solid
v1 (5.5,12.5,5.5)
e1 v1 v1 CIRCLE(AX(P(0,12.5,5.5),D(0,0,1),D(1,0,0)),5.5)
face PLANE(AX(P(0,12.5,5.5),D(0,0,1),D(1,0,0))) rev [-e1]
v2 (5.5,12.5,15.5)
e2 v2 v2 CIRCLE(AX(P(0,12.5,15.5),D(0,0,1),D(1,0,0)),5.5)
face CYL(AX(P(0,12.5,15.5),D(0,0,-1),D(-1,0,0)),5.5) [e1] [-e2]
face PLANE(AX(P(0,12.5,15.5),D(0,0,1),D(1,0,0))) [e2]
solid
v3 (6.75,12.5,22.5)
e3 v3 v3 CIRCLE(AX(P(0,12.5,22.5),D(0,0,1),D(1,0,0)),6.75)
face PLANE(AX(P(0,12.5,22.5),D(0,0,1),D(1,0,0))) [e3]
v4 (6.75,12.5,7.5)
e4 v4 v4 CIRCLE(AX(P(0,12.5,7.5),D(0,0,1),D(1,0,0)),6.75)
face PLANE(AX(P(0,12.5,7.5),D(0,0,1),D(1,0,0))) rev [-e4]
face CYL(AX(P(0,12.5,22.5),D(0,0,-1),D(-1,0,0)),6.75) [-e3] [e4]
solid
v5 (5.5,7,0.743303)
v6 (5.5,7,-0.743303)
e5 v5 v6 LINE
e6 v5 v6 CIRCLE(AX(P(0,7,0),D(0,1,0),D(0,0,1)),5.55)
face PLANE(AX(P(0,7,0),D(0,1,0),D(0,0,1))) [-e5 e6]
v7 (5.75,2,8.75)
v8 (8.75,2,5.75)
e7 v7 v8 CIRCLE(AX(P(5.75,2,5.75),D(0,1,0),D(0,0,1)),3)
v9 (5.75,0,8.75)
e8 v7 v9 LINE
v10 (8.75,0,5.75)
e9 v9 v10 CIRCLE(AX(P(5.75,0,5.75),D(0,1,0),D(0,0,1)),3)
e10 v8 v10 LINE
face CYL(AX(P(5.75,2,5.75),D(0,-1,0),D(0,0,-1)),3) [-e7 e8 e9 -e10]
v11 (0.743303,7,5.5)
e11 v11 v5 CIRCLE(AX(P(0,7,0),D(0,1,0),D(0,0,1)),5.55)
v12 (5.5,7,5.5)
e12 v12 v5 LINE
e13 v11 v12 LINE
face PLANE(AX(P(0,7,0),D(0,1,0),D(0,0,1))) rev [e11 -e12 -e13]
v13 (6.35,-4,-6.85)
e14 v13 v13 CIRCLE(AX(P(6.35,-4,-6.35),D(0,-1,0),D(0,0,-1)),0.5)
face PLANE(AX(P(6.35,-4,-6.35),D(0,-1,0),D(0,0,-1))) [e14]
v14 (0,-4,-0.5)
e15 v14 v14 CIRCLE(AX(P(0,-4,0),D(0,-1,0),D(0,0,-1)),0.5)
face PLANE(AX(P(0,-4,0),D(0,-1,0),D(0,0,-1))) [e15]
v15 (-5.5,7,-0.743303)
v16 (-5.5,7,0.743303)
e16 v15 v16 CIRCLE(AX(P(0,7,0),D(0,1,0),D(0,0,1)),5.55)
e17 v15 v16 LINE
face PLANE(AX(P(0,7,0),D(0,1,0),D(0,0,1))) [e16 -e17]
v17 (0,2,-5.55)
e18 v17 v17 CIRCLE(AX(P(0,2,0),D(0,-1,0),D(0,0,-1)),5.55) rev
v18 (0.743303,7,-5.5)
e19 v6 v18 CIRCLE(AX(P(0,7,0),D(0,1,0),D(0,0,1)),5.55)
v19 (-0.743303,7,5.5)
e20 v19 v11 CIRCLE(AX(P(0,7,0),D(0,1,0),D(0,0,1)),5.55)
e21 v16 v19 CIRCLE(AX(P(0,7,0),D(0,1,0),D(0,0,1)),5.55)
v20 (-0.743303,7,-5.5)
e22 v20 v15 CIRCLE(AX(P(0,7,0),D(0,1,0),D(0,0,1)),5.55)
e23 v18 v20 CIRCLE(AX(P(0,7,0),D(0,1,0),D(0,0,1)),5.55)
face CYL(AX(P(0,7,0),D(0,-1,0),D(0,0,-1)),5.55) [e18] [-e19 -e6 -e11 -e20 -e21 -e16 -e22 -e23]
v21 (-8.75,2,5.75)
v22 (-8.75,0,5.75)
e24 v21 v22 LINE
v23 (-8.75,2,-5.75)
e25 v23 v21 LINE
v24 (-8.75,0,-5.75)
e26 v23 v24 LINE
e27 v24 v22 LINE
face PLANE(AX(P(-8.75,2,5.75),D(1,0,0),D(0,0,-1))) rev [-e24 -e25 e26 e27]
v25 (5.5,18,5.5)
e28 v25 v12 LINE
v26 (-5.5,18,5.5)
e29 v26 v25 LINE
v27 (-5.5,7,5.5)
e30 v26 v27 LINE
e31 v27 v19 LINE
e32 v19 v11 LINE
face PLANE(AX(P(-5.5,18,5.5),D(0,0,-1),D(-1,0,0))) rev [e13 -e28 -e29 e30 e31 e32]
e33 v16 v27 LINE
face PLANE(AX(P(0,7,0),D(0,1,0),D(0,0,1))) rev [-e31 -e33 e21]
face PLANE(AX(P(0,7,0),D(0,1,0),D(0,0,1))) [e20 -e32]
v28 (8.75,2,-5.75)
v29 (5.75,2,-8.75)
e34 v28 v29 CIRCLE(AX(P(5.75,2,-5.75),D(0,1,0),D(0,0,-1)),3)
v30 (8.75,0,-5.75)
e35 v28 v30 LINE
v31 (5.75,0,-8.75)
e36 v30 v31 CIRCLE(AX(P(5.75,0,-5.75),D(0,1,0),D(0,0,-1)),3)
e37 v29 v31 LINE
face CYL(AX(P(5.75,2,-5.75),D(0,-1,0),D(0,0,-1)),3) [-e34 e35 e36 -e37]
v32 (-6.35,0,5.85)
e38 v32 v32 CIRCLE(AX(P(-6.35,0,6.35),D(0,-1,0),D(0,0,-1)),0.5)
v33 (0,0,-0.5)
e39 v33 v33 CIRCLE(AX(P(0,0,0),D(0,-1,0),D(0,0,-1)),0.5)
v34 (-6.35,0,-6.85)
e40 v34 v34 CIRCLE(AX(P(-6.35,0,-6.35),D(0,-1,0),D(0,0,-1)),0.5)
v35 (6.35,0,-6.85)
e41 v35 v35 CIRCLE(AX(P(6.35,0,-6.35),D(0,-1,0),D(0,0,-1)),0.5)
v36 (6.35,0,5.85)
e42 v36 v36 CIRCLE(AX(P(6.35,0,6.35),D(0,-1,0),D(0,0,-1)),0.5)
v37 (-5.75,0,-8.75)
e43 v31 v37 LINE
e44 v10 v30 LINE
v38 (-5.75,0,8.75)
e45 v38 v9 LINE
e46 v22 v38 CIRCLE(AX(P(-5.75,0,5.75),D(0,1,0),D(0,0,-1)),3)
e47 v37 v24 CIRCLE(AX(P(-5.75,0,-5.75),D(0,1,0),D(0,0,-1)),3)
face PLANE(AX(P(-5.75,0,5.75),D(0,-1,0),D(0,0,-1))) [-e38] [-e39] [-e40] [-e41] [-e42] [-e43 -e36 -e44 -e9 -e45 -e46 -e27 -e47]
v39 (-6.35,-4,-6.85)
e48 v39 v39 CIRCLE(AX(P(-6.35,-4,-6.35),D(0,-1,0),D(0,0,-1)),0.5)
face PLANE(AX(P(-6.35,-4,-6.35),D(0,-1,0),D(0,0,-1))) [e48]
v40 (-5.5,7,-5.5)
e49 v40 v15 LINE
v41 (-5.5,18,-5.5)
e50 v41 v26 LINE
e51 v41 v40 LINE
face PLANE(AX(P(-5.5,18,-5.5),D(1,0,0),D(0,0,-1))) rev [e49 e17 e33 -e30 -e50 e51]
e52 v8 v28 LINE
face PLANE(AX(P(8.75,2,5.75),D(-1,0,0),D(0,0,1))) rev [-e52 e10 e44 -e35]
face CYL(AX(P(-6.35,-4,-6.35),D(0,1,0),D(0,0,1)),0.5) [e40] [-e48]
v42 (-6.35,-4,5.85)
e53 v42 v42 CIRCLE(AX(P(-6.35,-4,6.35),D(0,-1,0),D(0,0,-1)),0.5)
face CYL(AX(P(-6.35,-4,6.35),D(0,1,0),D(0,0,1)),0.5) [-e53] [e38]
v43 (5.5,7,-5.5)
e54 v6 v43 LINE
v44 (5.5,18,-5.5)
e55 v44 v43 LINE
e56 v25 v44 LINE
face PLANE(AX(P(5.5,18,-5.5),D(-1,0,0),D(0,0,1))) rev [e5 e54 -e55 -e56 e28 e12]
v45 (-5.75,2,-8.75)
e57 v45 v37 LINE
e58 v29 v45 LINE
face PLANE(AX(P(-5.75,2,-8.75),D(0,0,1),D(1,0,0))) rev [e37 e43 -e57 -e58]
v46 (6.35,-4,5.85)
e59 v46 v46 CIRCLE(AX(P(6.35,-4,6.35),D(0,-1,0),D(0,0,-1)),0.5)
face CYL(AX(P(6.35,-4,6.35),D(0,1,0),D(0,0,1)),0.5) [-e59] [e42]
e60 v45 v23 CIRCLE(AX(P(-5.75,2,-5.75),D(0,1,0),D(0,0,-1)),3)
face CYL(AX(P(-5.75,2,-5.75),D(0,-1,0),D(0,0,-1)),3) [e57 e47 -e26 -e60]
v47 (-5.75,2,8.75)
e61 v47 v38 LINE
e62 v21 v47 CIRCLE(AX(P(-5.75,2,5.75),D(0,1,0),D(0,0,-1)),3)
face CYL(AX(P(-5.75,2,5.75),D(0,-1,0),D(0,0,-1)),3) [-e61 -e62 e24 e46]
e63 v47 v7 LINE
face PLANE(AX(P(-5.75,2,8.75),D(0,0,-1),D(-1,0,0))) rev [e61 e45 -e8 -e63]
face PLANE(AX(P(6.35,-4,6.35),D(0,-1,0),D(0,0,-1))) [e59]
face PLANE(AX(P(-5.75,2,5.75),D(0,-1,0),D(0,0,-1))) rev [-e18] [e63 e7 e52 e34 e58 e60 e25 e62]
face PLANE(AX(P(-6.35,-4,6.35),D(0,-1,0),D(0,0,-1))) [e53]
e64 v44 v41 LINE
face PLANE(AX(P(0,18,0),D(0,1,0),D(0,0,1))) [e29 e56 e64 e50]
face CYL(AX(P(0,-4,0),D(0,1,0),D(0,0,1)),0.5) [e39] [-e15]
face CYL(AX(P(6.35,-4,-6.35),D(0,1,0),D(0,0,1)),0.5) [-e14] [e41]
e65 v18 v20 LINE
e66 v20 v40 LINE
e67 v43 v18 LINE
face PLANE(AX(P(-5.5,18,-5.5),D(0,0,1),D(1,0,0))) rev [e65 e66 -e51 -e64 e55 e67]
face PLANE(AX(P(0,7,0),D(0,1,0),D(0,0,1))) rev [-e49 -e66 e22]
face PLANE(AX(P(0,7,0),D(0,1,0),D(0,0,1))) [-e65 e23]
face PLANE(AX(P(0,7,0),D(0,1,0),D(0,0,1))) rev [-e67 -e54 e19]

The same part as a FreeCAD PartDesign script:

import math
import FreeCAD as App
import Part
import Sketcher
Q = App.Units.Quantity

doc = App.newDocument("Part")
params = doc.addObject("Spreadsheet::Sheet", "Params")
for row, (alias, value) in enumerate([
    ("sketch1_radius", "3 mm"),
    ("sketch1_width", "11.5 mm"),
    ("pad1_length", "2 mm"),
    ("sketch2_diameter", "1 mm"),
    ("pad2_length", "4 mm"),
    ("sketch3_diameter", "11.1 mm"),
    ("pad3_length", "5 mm"),
    ("sketch4_width", "11 mm"),
    ("pad4_length", "11 mm"),
    ("sketch5_diameter", "11 mm"),
    ("pad5_length", "10 mm"),
    ("sketch6_diameter", "13.5 mm"),
    ("pad6_length", "15 mm"),
], start=1):
    params.set(f"A{row}", alias)
    params.set(f"B{row}", "=" + value)
    params.setAlias(f"B{row}", alias)

body = doc.addObject("PartDesign::Body", "Body")

# Sketch on XZ plane
sketch1 = body.newObject("Sketcher::SketchObject", "Sketch")
sketch1.AttachmentSupport = (doc.getObject("XZ_Plane"), [""])
sketch1.MapMode = "FlatFace"
sketch1.addGeometry(Part.LineSegment(App.Vector(-5.8, 8.8, 0), App.Vector(5.8, 8.8, 0)), False)
sketch1.addGeometry(Part.ArcOfCircle(Part.Circle(App.Vector(5.8, 5.8, 0), App.Vector(0, 0, 1), 3), math.radians(0), math.radians(90)), False)
sketch1.addGeometry(Part.LineSegment(App.Vector(8.8, 5.8, 0), App.Vector(8.8, -5.8, 0)), False)
sketch1.addGeometry(Part.ArcOfCircle(Part.Circle(App.Vector(5.8, -5.8, 0), App.Vector(0, 0, 1), 3), math.radians(-90), math.radians(0)), False)
sketch1.addGeometry(Part.LineSegment(App.Vector(5.8, -8.8, 0), App.Vector(-5.8, -8.8, 0)), False)
sketch1.addGeometry(Part.ArcOfCircle(Part.Circle(App.Vector(-5.8, -5.8, 0), App.Vector(0, 0, 1), 3), math.radians(180), math.radians(270)), False)
sketch1.addGeometry(Part.LineSegment(App.Vector(-8.8, -5.8, 0), App.Vector(-8.8, 5.8, 0)), False)
sketch1.addGeometry(Part.ArcOfCircle(Part.Circle(App.Vector(-5.8, 5.8, 0), App.Vector(0, 0, 1), 3), math.radians(90), math.radians(180)), False)
sketch1.addConstraint(Sketcher.Constraint("Tangent", 0, 2, 1, 2))
sketch1.addConstraint(Sketcher.Constraint("Tangent", 1, 1, 2, 1))
sketch1.addConstraint(Sketcher.Constraint("Tangent", 2, 2, 3, 2))
sketch1.addConstraint(Sketcher.Constraint("Tangent", 3, 1, 4, 1))
sketch1.addConstraint(Sketcher.Constraint("Tangent", 4, 2, 5, 2))
sketch1.addConstraint(Sketcher.Constraint("Tangent", 5, 1, 6, 1))
sketch1.addConstraint(Sketcher.Constraint("Tangent", 6, 2, 7, 2))
sketch1.addConstraint(Sketcher.Constraint("Tangent", 7, 1, 0, 1))
sketch1.addConstraint(Sketcher.Constraint("Horizontal", 0))
sketch1.addConstraint(Sketcher.Constraint("Vertical", 2))
sketch1.addConstraint(Sketcher.Constraint("Horizontal", 4))
sketch1.addConstraint(Sketcher.Constraint("Vertical", 6))
sketch1.addConstraint(Sketcher.Constraint("Equal", 1, 3))
sketch1.addConstraint(Sketcher.Constraint("Equal", 3, 5))
sketch1.addConstraint(Sketcher.Constraint("Equal", 5, 7))
sketch1.addConstraint(Sketcher.Constraint("Symmetric", 1, 3, 5, 3, -1, 1))
sketch1.addConstraint(Sketcher.Constraint("Equal", 4, 2))
sketch1.addConstraint(Sketcher.Constraint("Radius", 1, Q("3 mm")))
sketch1.addConstraint(Sketcher.Constraint("DistanceX", 0, 1, 0, 2, Q("11.5 mm")))
sketch1.setExpression("Constraints[17]", "Params.sketch1_radius")
sketch1.setExpression("Constraints[18]", "Params.sketch1_width")
pad1 = body.newObject("PartDesign::Pad", "Pad")
pad1.Profile = sketch1
pad1.setExpression("Length", "Params.pad1_length")
pad1.Reversed = True

# Sketch on XZ plane
sketch2 = body.newObject("Sketcher::SketchObject", "Sketch001")
sketch2.AttachmentSupport = (doc.getObject("XZ_Plane"), [""])
sketch2.MapMode = "FlatFace"
sketch2.addGeometry(Part.Circle(App.Vector(6.3, -6.3, 0), App.Vector(0, 0, 1), 0.5), False)
sketch2.addGeometry(Part.Circle(App.Vector(-6.3, 6.3, 0), App.Vector(0, 0, 1), 0.5), False)
sketch2.addGeometry(Part.Circle(App.Vector(6.3, 6.3, 0), App.Vector(0, 0, 1), 0.5), False)
sketch2.addGeometry(Part.Circle(App.Vector(-6.3, -6.3, 0), App.Vector(0, 0, 1), 0.5), False)
sketch2.addGeometry(Part.Circle(App.Vector(0, 0, 0), App.Vector(0, 0, 1), 0.5), False)
sketch2.addConstraint(Sketcher.Constraint("Coincident", 4, 3, -1, 1))
sketch2.addConstraint(Sketcher.Constraint("Equal", 0, 1))
sketch2.addConstraint(Sketcher.Constraint("Equal", 1, 2))
sketch2.addConstraint(Sketcher.Constraint("Equal", 2, 3))
sketch2.addConstraint(Sketcher.Constraint("Equal", 3, 4))
sketch2.addConstraint(Sketcher.Constraint("Symmetric", 0, 3, 1, 3, -1, 1))
sketch2.addConstraint(Sketcher.Constraint("Symmetric", 2, 3, 3, 3, -1, 1))
sketch2.addConstraint(Sketcher.Constraint("Symmetric", 1, 3, 2, 3, -2))
sketch2.addConstraint(Sketcher.Constraint("Diameter", 0, Q("1 mm")))
sketch2.addConstraint(Sketcher.Constraint("DistanceX", 1, 3, 0, 3, Q("12.7 mm")))
sketch2.addConstraint(Sketcher.Constraint("DistanceY", 0, 3, 1, 3, Q("12.7 mm")))
sketch2.setExpression("Constraints[8]", "Params.sketch2_diameter")
pad2 = body.newObject("PartDesign::Pad", "Pad001")
pad2.Profile = sketch2
pad2.setExpression("Length", "Params.pad2_length")

# Sketch on XZ plane
sketch3 = body.newObject("Sketcher::SketchObject", "Sketch002")
sketch3.AttachmentSupport = (doc.getObject("XZ_Plane"), [""])
sketch3.MapMode = "FlatFace"
sketch3.AttachmentOffset = App.Placement(App.Vector(0, 0, -2), App.Rotation())
sketch3.addGeometry(Part.Circle(App.Vector(0, 0, 0), App.Vector(0, 0, 1), 6), False)
sketch3.addConstraint(Sketcher.Constraint("Coincident", 0, 3, -1, 1))
sketch3.addConstraint(Sketcher.Constraint("Diameter", 0, Q("11.1 mm")))
sketch3.setExpression("Constraints[1]", "Params.sketch3_diameter")
pad3 = body.newObject("PartDesign::Pad", "Pad002")
pad3.Profile = sketch3
pad3.setExpression("Length", "Params.pad3_length")
pad3.Reversed = True

# Sketch on XZ plane
sketch4 = body.newObject("Sketcher::SketchObject", "Sketch003")
sketch4.AttachmentSupport = (doc.getObject("XZ_Plane"), [""])
sketch4.MapMode = "FlatFace"
sketch4.AttachmentOffset = App.Placement(App.Vector(0, 0, -7), App.Rotation())
sketch4.addGeometry(Part.LineSegment(App.Vector(-6, -6, 0), App.Vector(-6, 6, 0)), False)
sketch4.addGeometry(Part.LineSegment(App.Vector(-6, 6, 0), App.Vector(6, 6, 0)), False)
sketch4.addGeometry(Part.LineSegment(App.Vector(6, 6, 0), App.Vector(6, -6, 0)), False)
sketch4.addGeometry(Part.LineSegment(App.Vector(6, -6, 0), App.Vector(-6, -6, 0)), False)
sketch4.addConstraint(Sketcher.Constraint("Coincident", 0, 2, 1, 1))
sketch4.addConstraint(Sketcher.Constraint("Coincident", 1, 2, 2, 1))
sketch4.addConstraint(Sketcher.Constraint("Coincident", 2, 2, 3, 1))
sketch4.addConstraint(Sketcher.Constraint("Coincident", 3, 2, 0, 1))
sketch4.addConstraint(Sketcher.Constraint("Vertical", 0))
sketch4.addConstraint(Sketcher.Constraint("Horizontal", 1))
sketch4.addConstraint(Sketcher.Constraint("Vertical", 2))
sketch4.addConstraint(Sketcher.Constraint("Horizontal", 3))
sketch4.addConstraint(Sketcher.Constraint("Symmetric", 0, 2, 2, 2, -1, 1))
sketch4.addConstraint(Sketcher.Constraint("Equal", 3, 0))
sketch4.addConstraint(Sketcher.Constraint("DistanceX", 1, 1, 1, 2, Q("11 mm")))
sketch4.setExpression("Constraints[10]", "Params.sketch4_width")
pad4 = body.newObject("PartDesign::Pad", "Pad003")
pad4.Profile = sketch4
pad4.setExpression("Length", "Params.pad4_length")
pad4.Reversed = True
body2 = doc.addObject("PartDesign::Body", "Body001")

# Sketch on XY plane
sketch5 = body2.newObject("Sketcher::SketchObject", "Sketch004")
sketch5.AttachmentSupport = (doc.getObject("XY_Plane001"), [""])
sketch5.MapMode = "FlatFace"
sketch5.AttachmentOffset = App.Placement(App.Vector(0, 0, 5.5), App.Rotation())
sketch5.addGeometry(Part.Circle(App.Vector(0, 12, 0), App.Vector(0, 0, 1), 6), False)
sketch5.addConstraint(Sketcher.Constraint("PointOnObject", 0, 3, -2))
sketch5.addConstraint(Sketcher.Constraint("Diameter", 0, Q("11 mm")))
sketch5.addConstraint(Sketcher.Constraint("DistanceY", -1, 1, 0, 3, Q("12.5 mm")))
sketch5.setExpression("Constraints[1]", "Params.sketch5_diameter")
pad5 = body2.newObject("PartDesign::Pad", "Pad004")
pad5.Profile = sketch5
pad5.setExpression("Length", "Params.pad5_length")
body3 = doc.addObject("PartDesign::Body", "Body002")

# Sketch on XY plane
sketch6 = body3.newObject("Sketcher::SketchObject", "Sketch005")
sketch6.AttachmentSupport = (doc.getObject("XY_Plane002"), [""])
sketch6.MapMode = "FlatFace"
sketch6.AttachmentOffset = App.Placement(App.Vector(0, 0, 7.5), App.Rotation())
sketch6.addGeometry(Part.Circle(App.Vector(0, 12, 0), App.Vector(0, 0, 1), 7), False)
sketch6.addConstraint(Sketcher.Constraint("PointOnObject", 0, 3, -2))
sketch6.addConstraint(Sketcher.Constraint("Diameter", 0, Q("13.5 mm")))
sketch6.addConstraint(Sketcher.Constraint("DistanceY", -1, 1, 0, 3, Q("12.5 mm")))
sketch6.setExpression("Constraints[1]", "Params.sketch6_diameter")
pad6 = body3.newObject("PartDesign::Pad", "Pad005")
pad6.Profile = sketch6
pad6.setExpression("Length", "Params.pad6_length")

doc.recompute()
